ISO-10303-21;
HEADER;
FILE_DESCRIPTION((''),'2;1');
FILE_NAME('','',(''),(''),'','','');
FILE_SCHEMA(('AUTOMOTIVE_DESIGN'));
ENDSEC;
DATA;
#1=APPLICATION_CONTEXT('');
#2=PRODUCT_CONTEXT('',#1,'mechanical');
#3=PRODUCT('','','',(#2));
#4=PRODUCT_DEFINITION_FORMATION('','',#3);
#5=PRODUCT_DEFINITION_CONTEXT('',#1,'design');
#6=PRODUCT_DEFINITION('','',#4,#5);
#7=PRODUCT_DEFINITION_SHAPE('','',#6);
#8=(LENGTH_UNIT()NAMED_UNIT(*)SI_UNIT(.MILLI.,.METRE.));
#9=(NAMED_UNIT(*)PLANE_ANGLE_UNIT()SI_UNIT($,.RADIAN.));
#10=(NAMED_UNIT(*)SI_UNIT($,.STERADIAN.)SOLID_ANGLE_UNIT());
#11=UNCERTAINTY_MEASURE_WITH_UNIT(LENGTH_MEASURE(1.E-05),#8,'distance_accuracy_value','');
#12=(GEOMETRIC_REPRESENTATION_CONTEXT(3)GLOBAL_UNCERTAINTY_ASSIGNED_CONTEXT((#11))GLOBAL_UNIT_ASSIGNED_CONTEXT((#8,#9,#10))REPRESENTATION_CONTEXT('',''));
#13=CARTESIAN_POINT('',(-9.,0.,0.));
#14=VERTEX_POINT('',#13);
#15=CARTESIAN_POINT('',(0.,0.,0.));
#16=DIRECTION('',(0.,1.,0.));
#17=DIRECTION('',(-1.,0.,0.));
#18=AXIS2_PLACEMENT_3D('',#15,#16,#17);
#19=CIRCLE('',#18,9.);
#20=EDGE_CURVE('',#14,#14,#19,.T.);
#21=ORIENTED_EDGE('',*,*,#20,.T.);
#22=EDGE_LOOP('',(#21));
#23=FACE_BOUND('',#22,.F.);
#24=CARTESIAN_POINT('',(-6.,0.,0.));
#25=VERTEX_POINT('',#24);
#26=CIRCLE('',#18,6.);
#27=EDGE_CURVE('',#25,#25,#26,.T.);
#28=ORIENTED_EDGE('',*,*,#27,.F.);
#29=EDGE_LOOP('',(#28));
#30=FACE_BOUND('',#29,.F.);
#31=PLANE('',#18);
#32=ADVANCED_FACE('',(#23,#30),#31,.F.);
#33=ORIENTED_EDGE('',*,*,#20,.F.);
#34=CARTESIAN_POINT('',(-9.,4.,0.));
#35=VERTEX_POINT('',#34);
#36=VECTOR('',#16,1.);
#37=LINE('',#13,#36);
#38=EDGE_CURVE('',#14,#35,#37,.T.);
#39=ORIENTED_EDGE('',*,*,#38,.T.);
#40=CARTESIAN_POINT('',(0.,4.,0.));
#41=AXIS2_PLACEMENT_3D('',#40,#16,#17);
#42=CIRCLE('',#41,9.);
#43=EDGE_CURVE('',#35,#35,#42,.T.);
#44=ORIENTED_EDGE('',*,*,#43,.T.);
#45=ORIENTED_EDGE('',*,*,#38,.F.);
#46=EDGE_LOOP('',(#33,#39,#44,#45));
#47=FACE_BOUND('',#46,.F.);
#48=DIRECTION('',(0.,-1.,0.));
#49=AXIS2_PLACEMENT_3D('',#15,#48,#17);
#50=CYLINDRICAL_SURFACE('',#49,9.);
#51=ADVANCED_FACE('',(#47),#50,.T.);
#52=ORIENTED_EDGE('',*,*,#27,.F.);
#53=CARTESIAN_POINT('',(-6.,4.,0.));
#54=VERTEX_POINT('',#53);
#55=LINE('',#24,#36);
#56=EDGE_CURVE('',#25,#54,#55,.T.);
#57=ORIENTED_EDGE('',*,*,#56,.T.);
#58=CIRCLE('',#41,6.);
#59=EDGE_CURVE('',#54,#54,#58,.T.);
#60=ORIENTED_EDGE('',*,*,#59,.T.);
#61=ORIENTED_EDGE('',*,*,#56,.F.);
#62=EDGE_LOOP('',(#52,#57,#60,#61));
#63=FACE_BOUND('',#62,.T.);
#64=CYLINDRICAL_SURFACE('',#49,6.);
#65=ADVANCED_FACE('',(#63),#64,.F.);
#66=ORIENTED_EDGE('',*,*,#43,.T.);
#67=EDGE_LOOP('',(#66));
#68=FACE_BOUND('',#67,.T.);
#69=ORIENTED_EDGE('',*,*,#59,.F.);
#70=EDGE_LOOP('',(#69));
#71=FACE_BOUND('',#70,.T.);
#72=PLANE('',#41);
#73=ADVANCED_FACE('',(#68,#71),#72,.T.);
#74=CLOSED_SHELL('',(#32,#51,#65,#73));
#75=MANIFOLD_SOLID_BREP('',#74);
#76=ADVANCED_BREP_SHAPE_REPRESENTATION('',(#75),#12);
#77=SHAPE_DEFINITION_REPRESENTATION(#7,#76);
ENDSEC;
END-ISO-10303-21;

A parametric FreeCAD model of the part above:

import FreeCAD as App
import Part
import Sketcher

doc = App.newDocument("Part")
body = doc.addObject("PartDesign::Body", "Body")

sketch1 = body.newObject("Sketcher::SketchObject", "Sketch")
sketch1.AttachmentSupport = (doc.getObject("XZ_Plane"), [""])
sketch1.MapMode = "FlatFace"
sketch1.addGeometry(Part.Circle(App.Vector(0, 0, 0), App.Vector(0, 0, 1), 9), False)
sketch1.addGeometry(Part.Circle(App.Vector(0, 0, 0), App.Vector(0, 0, 1), 6), False)
sketch1.addConstraint(Sketcher.Constraint("Coincident", 0, 3, -1, 1))
sketch1.addConstraint(Sketcher.Constraint("Coincident", 1, 3, -1, 1))
sketch1.addConstraint(Sketcher.Constraint("Diameter", 0, 18.0))
sketch1.addConstraint(Sketcher.Constraint("Diameter", 1, 12.0))
pad1 = body.newObject("PartDesign::Pad", "Pad")
pad1.Profile = sketch1
pad1.Length = 4
pad1.Reversed = True

doc.recompute()
